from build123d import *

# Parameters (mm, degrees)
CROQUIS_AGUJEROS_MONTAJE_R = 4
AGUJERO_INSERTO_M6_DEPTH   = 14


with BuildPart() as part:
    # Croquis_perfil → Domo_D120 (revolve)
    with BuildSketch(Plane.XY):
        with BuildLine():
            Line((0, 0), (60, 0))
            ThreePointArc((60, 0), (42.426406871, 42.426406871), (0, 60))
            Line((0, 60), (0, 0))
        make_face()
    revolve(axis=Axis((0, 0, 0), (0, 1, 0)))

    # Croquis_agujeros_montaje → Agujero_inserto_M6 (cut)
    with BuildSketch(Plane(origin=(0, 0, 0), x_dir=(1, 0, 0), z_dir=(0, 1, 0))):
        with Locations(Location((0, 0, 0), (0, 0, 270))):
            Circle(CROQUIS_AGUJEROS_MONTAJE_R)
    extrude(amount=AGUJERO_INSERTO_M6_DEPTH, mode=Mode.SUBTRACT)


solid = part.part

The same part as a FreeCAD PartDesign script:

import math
import FreeCAD as App
import Part
import Sketcher

V = App.Vector
Q = App.Units.Quantity

doc = App.newDocument("Part")
body = doc.addObject("PartDesign::Body", "Body")

# Sketch on XY plane
sketch1 = body.newObject("Sketcher::SketchObject", "Sketch")
sketch1.AttachmentSupport = (doc.getObject("XY_Plane"), [""])
sketch1.MapMode = "FlatFace"
sketch1.addGeometry([
    Part.LineSegment(V(0, 0, 0), V(60, 0, 0)),
    Part.ArcOfCircle(Part.Circle(V(0, 0, 0), V(0, 0, 1), 60), math.radians(0), math.radians(90)),
    Part.LineSegment(V(0, 60, 0), V(0, 0, 0)),
], False)
sketch1.addConstraint([
    Sketcher.Constraint("Coincident", 0, 2, 1, 1),
    Sketcher.Constraint("Coincident", 1, 2, 2, 1),
    Sketcher.Constraint("Coincident", 2, 2, 0, 1),
    Sketcher.Constraint("Horizontal", 0),
    Sketcher.Constraint("Vertical", 2),
    Sketcher.Constraint("Coincident", 1, 3, -1, 1),
    Sketcher.Constraint("Coincident", 2, 2, -1, 1),
    Sketcher.Constraint("Radius", 1, Q("60 mm")),
])
revolution = body.newObject("PartDesign::Revolution", "Revolution")
revolution.Profile = sketch1
revolution.ReferenceAxis = (sketch1, ["V_Axis"])
revolution.Angle = 360

# Sketch on XZ plane
sketch2 = body.newObject("Sketcher::SketchObject", "Sketch001")
sketch2.AttachmentSupport = (doc.getObject("XZ_Plane"), [""])
sketch2.MapMode = "FlatFace"
sketch2.addGeometry(Part.Circle(V(0, 0, 0), V(0, 0, 1), 4), False)
sketch2.addConstraint([
    Sketcher.Constraint("Coincident", 0, 3, -1, 1),
    Sketcher.Constraint("Diameter", 0, Q("8 mm")),
])
pocket1 = body.newObject("PartDesign::Pocket", "Pocket")
pocket1.Profile = sketch2
pocket1.Length = 14

doc.recompute()
